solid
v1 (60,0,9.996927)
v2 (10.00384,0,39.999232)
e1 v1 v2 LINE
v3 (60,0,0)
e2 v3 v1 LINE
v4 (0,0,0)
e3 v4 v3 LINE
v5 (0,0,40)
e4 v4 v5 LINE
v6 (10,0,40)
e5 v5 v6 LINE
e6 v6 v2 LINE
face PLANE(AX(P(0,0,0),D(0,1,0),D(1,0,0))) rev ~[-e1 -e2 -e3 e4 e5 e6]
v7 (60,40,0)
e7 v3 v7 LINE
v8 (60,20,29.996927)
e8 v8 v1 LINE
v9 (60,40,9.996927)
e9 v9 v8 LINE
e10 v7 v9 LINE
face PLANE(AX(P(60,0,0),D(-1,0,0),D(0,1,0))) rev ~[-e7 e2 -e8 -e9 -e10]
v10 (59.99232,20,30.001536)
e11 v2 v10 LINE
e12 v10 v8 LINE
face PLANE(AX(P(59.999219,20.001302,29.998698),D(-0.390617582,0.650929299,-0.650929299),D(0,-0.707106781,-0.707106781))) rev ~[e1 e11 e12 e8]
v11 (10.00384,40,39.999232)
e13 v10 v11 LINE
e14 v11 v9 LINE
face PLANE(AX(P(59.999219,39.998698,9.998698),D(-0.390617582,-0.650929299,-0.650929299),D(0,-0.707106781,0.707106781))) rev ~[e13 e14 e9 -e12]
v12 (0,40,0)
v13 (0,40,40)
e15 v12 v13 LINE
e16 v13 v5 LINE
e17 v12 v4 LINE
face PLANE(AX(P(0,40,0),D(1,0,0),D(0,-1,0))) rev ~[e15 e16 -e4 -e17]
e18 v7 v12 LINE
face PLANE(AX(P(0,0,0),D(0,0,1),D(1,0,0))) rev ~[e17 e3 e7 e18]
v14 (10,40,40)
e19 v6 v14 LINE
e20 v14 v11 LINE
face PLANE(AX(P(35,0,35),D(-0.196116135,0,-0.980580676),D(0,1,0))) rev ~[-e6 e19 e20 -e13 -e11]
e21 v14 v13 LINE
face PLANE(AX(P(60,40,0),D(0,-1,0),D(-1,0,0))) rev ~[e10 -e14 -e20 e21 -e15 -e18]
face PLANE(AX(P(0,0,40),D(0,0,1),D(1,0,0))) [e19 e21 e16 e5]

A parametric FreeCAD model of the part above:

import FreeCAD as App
import Part
import Sketcher


def edges_at(feature, points):
    """Names of the edges that pass closest to the given points."""
    edges = feature.Shape.Edges
    near = lambda p: min(range(len(edges)), key=lambda i: edges[i].distToShape(Part.Vertex(*p))[0])
    return sorted({f"Edge{near(p) + 1}" for p in points})

doc = App.newDocument("Part")
body = doc.addObject("PartDesign::Body", "Body")

sketch1 = body.newObject("Sketcher::SketchObject", "Sketch")
sketch1.AttachmentSupport = (doc.getObject("XY_Plane"), [""])
sketch1.MapMode = "FlatFace"
sketch1.addGeometry([
    Part.LineSegment(App.Vector(0, 40, 0), App.Vector(0, 0, 0)),
    Part.LineSegment(App.Vector(0, 0, 0), App.Vector(60, 0, 0)),
    Part.LineSegment(App.Vector(60, 0, 0), App.Vector(60, 40, 0)),
    Part.LineSegment(App.Vector(60, 40, 0), App.Vector(0, 40, 0)),
], False)
sketch1.addConstraint([
    Sketcher.Constraint("Coincident", 0, 2, 1, 1),
    Sketcher.Constraint("Coincident", 1, 2, 2, 1),
    Sketcher.Constraint("Coincident", 2, 2, 3, 1),
    Sketcher.Constraint("Coincident", 3, 2, 0, 1),
    Sketcher.Constraint("Vertical", 0),
    Sketcher.Constraint("Horizontal", 1),
    Sketcher.Constraint("Vertical", 2),
    Sketcher.Constraint("Horizontal", 3),
    Sketcher.Constraint("Coincident", 0, 2, -1, 1),
    Sketcher.Constraint("DistanceX", 1, 1, 1, 2, 60.0),
    Sketcher.Constraint("DistanceY", 0, 2, 0, 1, 40.0),
])
pad1 = body.newObject("PartDesign::Pad", "Pad")
pad1.Profile = sketch1
pad1.Length = 40
doc.recompute()

chamfer = body.newObject("PartDesign::Chamfer", "Chamfer")
chamfer.Base = (pad1, edges_at(pad1, [(60, 20, 40)]))
chamfer.ChamferType = "Two distances"
chamfer.Size = 50
chamfer.Size2 = 10
chamfer.FlipDirection = True

sketch2 = body.newObject("Sketcher::SketchObject", "Sketch001")
sketch2.Placement = App.Placement(App.Vector(60, 40, 10), App.Rotation(App.Vector(0, -0.707106781, 0.707106781), App.Vector(-0.920553043, 0.276208341, 0.276208341), App.Vector(-0.390617582, -0.650929299, -0.650929299), "ZXY"))
sketch2.addGeometry([
    Part.LineSegment(App.Vector(47, 86, 0), App.Vector(-21, 86, 0)),
    Part.LineSegment(App.Vector(-21, 86, 0), App.Vector(-21, -29, 0)),
    Part.LineSegment(App.Vector(-21, -29, 0), App.Vector(47, -29, 0)),
    Part.LineSegment(App.Vector(47, -29, 0), App.Vector(47, 86, 0)),
], False)
sketch2.addConstraint([
    Sketcher.Constraint("Coincident", 0, 2, 1, 1),
    Sketcher.Constraint("Coincident", 1, 2, 2, 1),
    Sketcher.Constraint("Coincident", 2, 2, 3, 1),
    Sketcher.Constraint("Coincident", 3, 2, 0, 1),
    Sketcher.Constraint("Horizontal", 0),
    Sketcher.Constraint("Vertical", 1),
    Sketcher.Constraint("Horizontal", 2),
    Sketcher.Constraint("Vertical", 3),
    Sketcher.Constraint("DistanceX", 0, 2, 0, 1, 67.9972),
    Sketcher.Constraint("DistanceY", 1, 2, 1, 1, 114.5562),
    Sketcher.Constraint("DistanceY", -1, 1, 0, 2, 86.012),
    Sketcher.Constraint("DistanceX", 0, 2, -1, 1, 21.2028),
])
pocket1 = body.newObject("PartDesign::Pocket", "Pocket")
pocket1.Profile = sketch2
pocket1.Length = 40

sketch3 = body.newObject("Sketcher::SketchObject", "Sketch002")
sketch3.Placement = App.Placement(App.Vector(60, 20, 30), App.Rotation(App.Vector(0, -0.707106781, -0.707106781), App.Vector(-0.920553043, -0.276208341, 0.276208341), App.Vector(-0.390617582, 0.650929299, -0.650929299), "ZXY"))
sketch3.addGeometry([
    Part.LineSegment(App.Vector(45, 80, 0), App.Vector(-21, 80, 0)),
    Part.LineSegment(App.Vector(-21, 80, 0), App.Vector(-21, -31, 0)),
    Part.LineSegment(App.Vector(-21, -31, 0), App.Vector(45, -31, 0)),
    Part.LineSegment(App.Vector(45, -31, 0), App.Vector(45, 80, 0)),
], False)
sketch3.addConstraint([
    Sketcher.Constraint("Coincident", 0, 2, 1, 1),
    Sketcher.Constraint("Coincident", 1, 2, 2, 1),
    Sketcher.Constraint("Coincident", 2, 2, 3, 1),
    Sketcher.Constraint("Coincident", 3, 2, 0, 1),
    Sketcher.Constraint("Horizontal", 0),
    Sketcher.Constraint("Vertical", 1),
    Sketcher.Constraint("Horizontal", 2),
    Sketcher.Constraint("Vertical", 3),
    Sketcher.Constraint("DistanceX", 0, 2, 0, 1, 66.0244),
    Sketcher.Constraint("DistanceY", 1, 2, 1, 1, 111.3997),
    Sketcher.Constraint("DistanceY", -1, 1, 0, 2, 80.224),
    Sketcher.Constraint("DistanceX", 0, 2, -1, 1, 21.2652),
])
pocket2 = body.newObject("PartDesign::Pocket", "Pocket001")
pocket2.Profile = sketch3
pocket2.Length = 40

doc.recompute()
